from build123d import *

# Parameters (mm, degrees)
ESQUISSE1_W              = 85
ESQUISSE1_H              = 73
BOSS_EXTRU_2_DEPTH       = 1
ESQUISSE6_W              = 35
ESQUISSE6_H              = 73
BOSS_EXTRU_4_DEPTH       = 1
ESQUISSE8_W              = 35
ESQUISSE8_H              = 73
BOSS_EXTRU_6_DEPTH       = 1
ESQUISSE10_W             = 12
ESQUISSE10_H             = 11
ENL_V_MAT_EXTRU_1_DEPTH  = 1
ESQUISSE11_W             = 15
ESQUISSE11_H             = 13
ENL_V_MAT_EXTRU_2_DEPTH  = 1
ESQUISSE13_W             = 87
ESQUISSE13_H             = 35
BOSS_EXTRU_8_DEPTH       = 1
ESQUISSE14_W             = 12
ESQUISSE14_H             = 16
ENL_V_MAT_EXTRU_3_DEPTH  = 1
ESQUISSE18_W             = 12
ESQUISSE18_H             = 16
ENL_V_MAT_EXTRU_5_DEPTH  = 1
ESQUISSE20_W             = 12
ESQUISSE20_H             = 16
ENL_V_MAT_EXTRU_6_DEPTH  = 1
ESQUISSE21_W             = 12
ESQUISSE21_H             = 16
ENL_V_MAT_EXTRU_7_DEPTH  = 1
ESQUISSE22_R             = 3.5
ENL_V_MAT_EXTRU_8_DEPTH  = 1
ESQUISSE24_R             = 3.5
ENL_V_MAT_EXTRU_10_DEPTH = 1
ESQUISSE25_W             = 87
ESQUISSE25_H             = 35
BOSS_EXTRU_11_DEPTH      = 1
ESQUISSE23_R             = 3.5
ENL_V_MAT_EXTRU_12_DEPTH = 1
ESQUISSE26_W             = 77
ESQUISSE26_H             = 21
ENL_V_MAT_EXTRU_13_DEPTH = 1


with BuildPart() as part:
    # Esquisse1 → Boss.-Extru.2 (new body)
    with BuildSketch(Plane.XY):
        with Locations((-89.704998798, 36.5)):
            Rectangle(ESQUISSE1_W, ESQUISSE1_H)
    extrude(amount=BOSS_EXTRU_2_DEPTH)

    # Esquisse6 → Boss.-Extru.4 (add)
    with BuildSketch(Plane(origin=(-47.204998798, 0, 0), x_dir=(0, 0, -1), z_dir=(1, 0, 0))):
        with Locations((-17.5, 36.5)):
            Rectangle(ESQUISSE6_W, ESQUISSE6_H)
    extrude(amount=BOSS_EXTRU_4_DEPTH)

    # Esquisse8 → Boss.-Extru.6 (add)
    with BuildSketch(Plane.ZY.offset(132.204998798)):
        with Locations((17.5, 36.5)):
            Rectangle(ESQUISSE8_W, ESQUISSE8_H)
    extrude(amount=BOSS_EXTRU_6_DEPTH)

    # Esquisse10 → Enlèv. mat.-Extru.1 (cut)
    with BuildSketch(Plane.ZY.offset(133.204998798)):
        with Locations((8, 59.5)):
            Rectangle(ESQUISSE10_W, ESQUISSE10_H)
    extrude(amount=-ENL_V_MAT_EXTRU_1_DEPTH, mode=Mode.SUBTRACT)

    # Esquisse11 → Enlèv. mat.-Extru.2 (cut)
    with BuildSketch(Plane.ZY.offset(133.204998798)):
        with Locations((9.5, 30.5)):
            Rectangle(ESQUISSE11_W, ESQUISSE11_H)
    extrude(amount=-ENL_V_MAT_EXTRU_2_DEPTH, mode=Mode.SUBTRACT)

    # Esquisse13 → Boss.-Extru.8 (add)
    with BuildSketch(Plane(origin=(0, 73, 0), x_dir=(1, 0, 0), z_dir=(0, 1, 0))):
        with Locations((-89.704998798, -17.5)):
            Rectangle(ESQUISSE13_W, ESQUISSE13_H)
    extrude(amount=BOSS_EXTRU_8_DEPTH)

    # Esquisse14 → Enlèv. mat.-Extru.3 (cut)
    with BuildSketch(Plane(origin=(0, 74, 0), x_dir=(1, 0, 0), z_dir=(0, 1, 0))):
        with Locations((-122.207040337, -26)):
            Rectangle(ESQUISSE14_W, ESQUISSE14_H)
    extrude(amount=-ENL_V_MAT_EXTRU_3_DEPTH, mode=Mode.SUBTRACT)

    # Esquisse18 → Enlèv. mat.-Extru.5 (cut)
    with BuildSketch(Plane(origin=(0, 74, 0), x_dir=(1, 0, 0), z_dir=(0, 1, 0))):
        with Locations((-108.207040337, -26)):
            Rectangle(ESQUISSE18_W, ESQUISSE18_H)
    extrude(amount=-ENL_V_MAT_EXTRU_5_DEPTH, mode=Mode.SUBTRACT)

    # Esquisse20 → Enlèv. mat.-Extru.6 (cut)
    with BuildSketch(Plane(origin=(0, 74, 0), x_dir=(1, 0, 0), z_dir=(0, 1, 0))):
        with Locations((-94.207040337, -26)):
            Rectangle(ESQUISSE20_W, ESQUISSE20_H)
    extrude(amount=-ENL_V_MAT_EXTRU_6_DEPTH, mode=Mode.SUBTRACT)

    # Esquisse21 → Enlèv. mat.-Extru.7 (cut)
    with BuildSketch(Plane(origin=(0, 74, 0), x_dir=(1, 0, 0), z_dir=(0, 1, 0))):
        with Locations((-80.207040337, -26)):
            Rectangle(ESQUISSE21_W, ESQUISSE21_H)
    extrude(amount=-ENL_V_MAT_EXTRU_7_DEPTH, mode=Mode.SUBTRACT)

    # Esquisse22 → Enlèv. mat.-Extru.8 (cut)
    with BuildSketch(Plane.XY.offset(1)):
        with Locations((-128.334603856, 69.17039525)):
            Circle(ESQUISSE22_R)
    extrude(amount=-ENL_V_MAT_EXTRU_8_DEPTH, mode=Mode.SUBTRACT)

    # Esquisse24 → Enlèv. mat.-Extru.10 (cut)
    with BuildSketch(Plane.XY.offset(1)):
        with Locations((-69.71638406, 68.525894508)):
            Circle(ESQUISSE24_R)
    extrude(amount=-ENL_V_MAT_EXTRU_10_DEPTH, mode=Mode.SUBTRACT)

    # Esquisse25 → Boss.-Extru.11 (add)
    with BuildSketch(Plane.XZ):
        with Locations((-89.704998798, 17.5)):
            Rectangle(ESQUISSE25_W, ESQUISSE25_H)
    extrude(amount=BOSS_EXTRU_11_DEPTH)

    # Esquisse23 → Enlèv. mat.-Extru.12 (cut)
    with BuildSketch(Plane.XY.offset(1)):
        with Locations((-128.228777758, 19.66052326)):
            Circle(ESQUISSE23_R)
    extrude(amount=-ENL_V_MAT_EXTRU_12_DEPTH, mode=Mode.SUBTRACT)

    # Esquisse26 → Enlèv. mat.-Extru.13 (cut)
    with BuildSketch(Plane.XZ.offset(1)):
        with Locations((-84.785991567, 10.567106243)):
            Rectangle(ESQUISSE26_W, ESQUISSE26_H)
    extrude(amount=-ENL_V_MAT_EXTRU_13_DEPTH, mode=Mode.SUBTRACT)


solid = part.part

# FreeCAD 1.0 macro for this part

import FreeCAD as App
import Part
import Sketcher
from FreeCAD import Vector

doc = App.newDocument("Part")
body = doc.addObject("PartDesign::Body", "Body")

# Sketch on XY plane
sketch1 = body.newObject("Sketcher::SketchObject", "Sketch")
sketch1.AttachmentSupport = (doc.getObject("XY_Plane"), [""])
sketch1.MapMode = "FlatFace"
sketch1.addGeometry(Part.LineSegment(Vector(-132, 73, 0), Vector(-132, 0, 0)), False)
sketch1.addGeometry(Part.LineSegment(Vector(-132, 0, 0), Vector(-47, 0, 0)), False)
sketch1.addGeometry(Part.LineSegment(Vector(-47, 0, 0), Vector(-47, 73, 0)), False)
sketch1.addGeometry(Part.LineSegment(Vector(-47, 73, 0), Vector(-132, 73, 0)), False)
sketch1.addConstraint(Sketcher.Constraint("Coincident", 0, 2, 1, 1))
sketch1.addConstraint(Sketcher.Constraint("Coincident", 1, 2, 2, 1))
sketch1.addConstraint(Sketcher.Constraint("Coincident", 2, 2, 3, 1))
sketch1.addConstraint(Sketcher.Constraint("Coincident", 3, 2, 0, 1))
sketch1.addConstraint(Sketcher.Constraint("Vertical", 0))
sketch1.addConstraint(Sketcher.Constraint("Horizontal", 1))
sketch1.addConstraint(Sketcher.Constraint("Vertical", 2))
sketch1.addConstraint(Sketcher.Constraint("Horizontal", 3))
sketch1.addConstraint(Sketcher.Constraint("PointOnObject", 0, 2, -1))
sketch1.addConstraint(Sketcher.Constraint("DistanceX", 1, 1, 1, 2, 85.0))
sketch1.addConstraint(Sketcher.Constraint("DistanceY", 0, 2, 0, 1, 73.0))
sketch1.addConstraint(Sketcher.Constraint("DistanceX", 0, 2, -1, 1, 132.204999))
pad1 = body.newObject("PartDesign::Pad", "Pad")
pad1.Profile = sketch1
pad1.Length = 1

# Sketch on YZ plane
sketch2 = body.newObject("Sketcher::SketchObject", "Sketch001")
sketch2.AttachmentSupport = (doc.getObject("YZ_Plane"), [""])
sketch2.MapMode = "FlatFace"
sketch2.AttachmentOffset = App.Placement(Vector(0, 0, -47.204999), App.Rotation())
sketch2.addGeometry(Part.LineSegment(Vector(73, 35, 0), Vector(0, 35, 0)), False)
sketch2.addGeometry(Part.LineSegment(Vector(0, 35, 0), Vector(0, 0, 0)), False)
sketch2.addGeometry(Part.LineSegment(Vector(0, 0, 0), Vector(73, 0, 0)), False)
sketch2.addGeometry(Part.LineSegment(Vector(73, 0, 0), Vector(73, 35, 0)), False)
sketch2.addConstraint(Sketcher.Constraint("Coincident", 0, 2, 1, 1))
sketch2.addConstraint(Sketcher.Constraint("Coincident", 1, 2, 2, 1))
sketch2.addConstraint(Sketcher.Constraint("Coincident", 2, 2, 3, 1))
sketch2.addConstraint(Sketcher.Constraint("Coincident", 3, 2, 0, 1))
sketch2.addConstraint(Sketcher.Constraint("Horizontal", 0))
sketch2.addConstraint(Sketcher.Constraint("Vertical", 1))
sketch2.addConstraint(Sketcher.Constraint("Horizontal", 2))
sketch2.addConstraint(Sketcher.Constraint("Vertical", 3))
sketch2.addConstraint(Sketcher.Constraint("Coincident", 1, 2, -1, 1))
sketch2.addConstraint(Sketcher.Constraint("DistanceX", 0, 2, 0, 1, 73.0))
sketch2.addConstraint(Sketcher.Constraint("DistanceY", 1, 2, 1, 1, 35.0))
pad2 = body.newObject("PartDesign::Pad", "Pad001")
pad2.Profile = sketch2
pad2.Length = 1

# Sketch on YZ plane
sketch3 = body.newObject("Sketcher::SketchObject", "Sketch002")
sketch3.AttachmentSupport = (doc.getObject("YZ_Plane"), [""])
sketch3.MapMode = "FlatFace"
sketch3.AttachmentOffset = App.Placement(Vector(0, 0, -132.204999), App.Rotation())
sketch3.addGeometry(Part.LineSegment(Vector(73, 0, 0), Vector(0, 0, 0)), False)
sketch3.addGeometry(Part.LineSegment(Vector(0, 0, 0), Vector(0, 35, 0)), False)
sketch3.addGeometry(Part.LineSegment(Vector(0, 35, 0), Vector(73, 35, 0)), False)
sketch3.addGeometry(Part.LineSegment(Vector(73, 35, 0), Vector(73, 0, 0)), False)
sketch3.addConstraint(Sketcher.Constraint("Coincident", 0, 2, 1, 1))
sketch3.addConstraint(Sketcher.Constraint("Coincident", 1, 2, 2, 1))
sketch3.addConstraint(Sketcher.Constraint("Coincident", 2, 2, 3, 1))
sketch3.addConstraint(Sketcher.Constraint("Coincident", 3, 2, 0, 1))
sketch3.addConstraint(Sketcher.Constraint("Horizontal", 0))
sketch3.addConstraint(Sketcher.Constraint("Vertical", 1))
sketch3.addConstraint(Sketcher.Constraint("Horizontal", 2))
sketch3.addConstraint(Sketcher.Constraint("Vertical", 3))
sketch3.addConstraint(Sketcher.Constraint("Coincident", 0, 2, -1, 1))
sketch3.addConstraint(Sketcher.Constraint("DistanceX", 0, 2, 0, 1, 73.0))
sketch3.addConstraint(Sketcher.Constraint("DistanceY", 1, 1, 1, 2, 35.0))
pad3 = body.newObject("PartDesign::Pad", "Pad002")
pad3.Profile = sketch3
pad3.Length = 1
pad3.Reversed = True

# Sketch on YZ plane
sketch4 = body.newObject("Sketcher::SketchObject", "Sketch003")
sketch4.AttachmentSupport = (doc.getObject("YZ_Plane"), [""])
sketch4.MapMode = "FlatFace"
sketch4.AttachmentOffset = App.Placement(Vector(0, 0, -133.204999), App.Rotation())
sketch4.addGeometry(Part.LineSegment(Vector(65, 2, 0), Vector(54, 2, 0)), False)
sketch4.addGeometry(Part.LineSegment(Vector(54, 2, 0), Vector(54, 14, 0)), False)
sketch4.addGeometry(Part.LineSegment(Vector(54, 14, 0), Vector(65, 14, 0)), False)
sketch4.addGeometry(Part.LineSegment(Vector(65, 14, 0), Vector(65, 2, 0)), False)
sketch4.addConstraint(Sketcher.Constraint("Coincident", 0, 2, 1, 1))
sketch4.addConstraint(Sketcher.Constraint("Coincident", 1, 2, 2, 1))
sketch4.addConstraint(Sketcher.Constraint("Coincident", 2, 2, 3, 1))
sketch4.addConstraint(Sketcher.Constraint("Coincident", 3, 2, 0, 1))
sketch4.addConstraint(Sketcher.Constraint("Horizontal", 0))
sketch4.addConstraint(Sketcher.Constraint("Vertical", 1))
sketch4.addConstraint(Sketcher.Constraint("Horizontal", 2))
sketch4.addConstraint(Sketcher.Constraint("Vertical", 3))
sketch4.addConstraint(Sketcher.Constraint("DistanceX", 0, 2, 0, 1, 11.0))
sketch4.addConstraint(Sketcher.Constraint("DistanceY", 1, 1, 1, 2, 12.0))
sketch4.addConstraint(Sketcher.Constraint("DistanceX", -1, 1, 0, 2, 54.0))
sketch4.addConstraint(Sketcher.Constraint("DistanceY", -1, 1, 0, 2, 2.0))
pocket1 = body.newObject("PartDesign::Pocket", "Pocket")
pocket1.Profile = sketch4
pocket1.Length = 1
pocket1.Reversed = True

# Sketch on YZ plane
sketch5 = body.newObject("Sketcher::SketchObject", "Sketch004")
sketch5.AttachmentSupport = (doc.getObject("YZ_Plane"), [""])
sketch5.MapMode = "FlatFace"
sketch5.AttachmentOffset = App.Placement(Vector(0, 0, -133.204999), App.Rotation())
sketch5.addGeometry(Part.LineSegment(Vector(37, 2, 0), Vector(24, 2, 0)), False)
sketch5.addGeometry(Part.LineSegment(Vector(24, 2, 0), Vector(24, 17, 0)), False)
sketch5.addGeometry(Part.LineSegment(Vector(24, 17, 0), Vector(37, 17, 0)), False)
sketch5.addGeometry(Part.LineSegment(Vector(37, 17, 0), Vector(37, 2, 0)), False)
sketch5.addConstraint(Sketcher.Constraint("Coincident", 0, 2, 1, 1))
sketch5.addConstraint(Sketcher.Constraint("Coincident", 1, 2, 2, 1))
sketch5.addConstraint(Sketcher.Constraint("Coincident", 2, 2, 3, 1))
sketch5.addConstraint(Sketcher.Constraint("Coincident", 3, 2, 0, 1))
sketch5.addConstraint(Sketcher.Constraint("Horizontal", 0))
sketch5.addConstraint(Sketcher.Constraint("Vertical", 1))
sketch5.addConstraint(Sketcher.Constraint("Horizontal", 2))
sketch5.addConstraint(Sketcher.Constraint("Vertical", 3))
sketch5.addConstraint(Sketcher.Constraint("DistanceX", 0, 2, 0, 1, 13.0))
sketch5.addConstraint(Sketcher.Constraint("DistanceY", 1, 1, 1, 2, 15.0))
sketch5.addConstraint(Sketcher.Constraint("DistanceX", -1, 1, 0, 2, 24.0))
sketch5.addConstraint(Sketcher.Constraint("DistanceY", -1, 1, 0, 2, 2.0))
pocket2 = body.newObject("PartDesign::Pocket", "Pocket001")
pocket2.Profile = sketch5
pocket2.Length = 1
pocket2.Reversed = True

# Sketch on XZ plane
sketch6 = body.newObject("Sketcher::SketchObject", "Sketch005")
sketch6.AttachmentSupport = (doc.getObject("XZ_Plane"), [""])
sketch6.MapMode = "FlatFace"
sketch6.AttachmentOffset = App.Placement(Vector(0, 0, -73), App.Rotation())
sketch6.addGeometry(Part.LineSegment(Vector(-133, 0, 0), Vector(-133, 35, 0)), False)
sketch6.addGeometry(Part.LineSegment(Vector(-133, 35, 0), Vector(-46, 35, 0)), False)
sketch6.addGeometry(Part.LineSegment(Vector(-46, 35, 0), Vector(-46, 0, 0)), False)
sketch6.addGeometry(Part.LineSegment(Vector(-46, 0, 0), Vector(-133, 0, 0)), False)
sketch6.addConstraint(Sketcher.Constraint("Coincident", 0, 2, 1, 1))
sketch6.addConstraint(Sketcher.Constraint("Coincident", 1, 2, 2, 1))
sketch6.addConstraint(Sketcher.Constraint("Coincident", 2, 2, 3, 1))
sketch6.addConstraint(Sketcher.Constraint("Coincident", 3, 2, 0, 1))
sketch6.addConstraint(Sketcher.Constraint("Vertical", 0))
sketch6.addConstraint(Sketcher.Constraint("Horizontal", 1))
sketch6.addConstraint(Sketcher.Constraint("Vertical", 2))
sketch6.addConstraint(Sketcher.Constraint("Horizontal", 3))
sketch6.addConstraint(Sketcher.Constraint("PointOnObject", 2, 2, -1))
sketch6.addConstraint(Sketcher.Constraint("DistanceX", 1, 1, 1, 2, 87.0))
sketch6.addConstraint(Sketcher.Constraint("DistanceY", 0, 1, 0, 2, 35.0))
sketch6.addConstraint(Sketcher.Constraint("DistanceX", 0, 2, -1, 1, 133.204999))
pad4 = body.newObject("PartDesign::Pad", "Pad003")
pad4.Profile = sketch6
pad4.Length = 1
pad4.Reversed = True

# Sketch on XZ plane
sketch7 = body.newObject("Sketcher::SketchObject", "Sketch006")
sketch7.AttachmentSupport = (doc.getObject("XZ_Plane"), [""])
sketch7.MapMode = "FlatFace"
sketch7.AttachmentOffset = App.Placement(Vector(0, 0, -74), App.Rotation())
sketch7.addGeometry(Part.LineSegment(Vector(-128, 18, 0), Vector(-128, 34, 0)), False)
sketch7.addGeometry(Part.LineSegment(Vector(-128, 34, 0), Vector(-116, 34, 0)), False)
sketch7.addGeometry(Part.LineSegment(Vector(-116, 34, 0), Vector(-116, 18, 0)), False)
sketch7.addGeometry(Part.LineSegment(Vector(-116, 18, 0), Vector(-128, 18, 0)), False)
sketch7.addConstraint(Sketcher.Constraint("Coincident", 0, 2, 1, 1))
sketch7.addConstraint(Sketcher.Constraint("Coincident", 1, 2, 2, 1))
sketch7.addConstraint(Sketcher.Constraint("Coincident", 2, 2, 3, 1))
sketch7.addConstraint(Sketcher.Constraint("Coincident", 3, 2, 0, 1))
sketch7.addConstraint(Sketcher.Constraint("Vertical", 0))
sketch7.addConstraint(Sketcher.Constraint("Horizontal", 1))
sketch7.addConstraint(Sketcher.Constraint("Vertical", 2))
sketch7.addConstraint(Sketcher.Constraint("Horizontal", 3))
sketch7.addConstraint(Sketcher.Constraint("DistanceX", 1, 1, 1, 2, 12.0))
sketch7.addConstraint(Sketcher.Constraint("DistanceY", 0, 1, 0, 2, 16.0))
sketch7.addConstraint(Sketcher.Constraint("DistanceY", -1, 1, 0, 2, 34.0))
sketch7.addConstraint(Sketcher.Constraint("DistanceX", 0, 2, -1, 1, 128.20704))
pocket3 = body.newObject("PartDesign::Pocket", "Pocket002")
pocket3.Profile = sketch7
pocket3.Length = 1
pocket3.Reversed = True

# Sketch on XZ plane
sketch8 = body.newObject("Sketcher::SketchObject", "Sketch007")
sketch8.AttachmentSupport = (doc.getObject("XZ_Plane"), [""])
sketch8.MapMode = "FlatFace"
sketch8.AttachmentOffset = App.Placement(Vector(0, 0, -74), App.Rotation())
sketch8.addGeometry(Part.LineSegment(Vector(-114, 18, 0), Vector(-114, 34, 0)), False)
sketch8.addGeometry(Part.LineSegment(Vector(-114, 34, 0), Vector(-102, 34, 0)), False)
sketch8.addGeometry(Part.LineSegment(Vector(-102, 34, 0), Vector(-102, 18, 0)), False)
sketch8.addGeometry(Part.LineSegment(Vector(-102, 18, 0), Vector(-114, 18, 0)), False)
sketch8.addConstraint(Sketcher.Constraint("Coincident", 0, 2, 1, 1))
sketch8.addConstraint(Sketcher.Constraint("Coincident", 1, 2, 2, 1))
sketch8.addConstraint(Sketcher.Constraint("Coincident", 2, 2, 3, 1))
sketch8.addConstraint(Sketcher.Constraint("Coincident", 3, 2, 0, 1))
sketch8.addConstraint(Sketcher.Constraint("Vertical", 0))
sketch8.addConstraint(Sketcher.Constraint("Horizontal", 1))
sketch8.addConstraint(Sketcher.Constraint("Vertical", 2))
sketch8.addConstraint(Sketcher.Constraint("Horizontal", 3))
sketch8.addConstraint(Sketcher.Constraint("DistanceX", 1, 1, 1, 2, 12.0))
sketch8.addConstraint(Sketcher.Constraint("DistanceY", 0, 1, 0, 2, 16.0))
sketch8.addConstraint(Sketcher.Constraint("DistanceY", -1, 1, 0, 2, 34.0))
sketch8.addConstraint(Sketcher.Constraint("DistanceX", 0, 2, -1, 1, 114.20704))
pocket4 = body.newObject("PartDesign::Pocket", "Pocket003")
pocket4.Profile = sketch8
pocket4.Length = 1
pocket4.Reversed = True

# Sketch on XZ plane
sketch9 = body.newObject("Sketcher::SketchObject", "Sketch008")
sketch9.AttachmentSupport = (doc.getObject("XZ_Plane"), [""])
sketch9.MapMode = "FlatFace"
sketch9.AttachmentOffset = App.Placement(Vector(0, 0, -74), App.Rotation())
sketch9.addGeometry(Part.LineSegment(Vector(-100, 18, 0), Vector(-100, 34, 0)), False)
sketch9.addGeometry(Part.LineSegment(Vector(-100, 34, 0), Vector(-88, 34, 0)), False)
sketch9.addGeometry(Part.LineSegment(Vector(-88, 34, 0), Vector(-88, 18, 0)), False)
sketch9.addGeometry(Part.LineSegment(Vector(-88, 18, 0), Vector(-100, 18, 0)), False)
sketch9.addConstraint(Sketcher.Constraint("Coincident", 0, 2, 1, 1))
sketch9.addConstraint(Sketcher.Constraint("Coincident", 1, 2, 2, 1))
sketch9.addConstraint(Sketcher.Constraint("Coincident", 2, 2, 3, 1))
sketch9.addConstraint(Sketcher.Constraint("Coincident", 3, 2, 0, 1))
sketch9.addConstraint(Sketcher.Constraint("Vertical", 0))
sketch9.addConstraint(Sketcher.Constraint("Horizontal", 1))
sketch9.addConstraint(Sketcher.Constraint("Vertical", 2))
sketch9.addConstraint(Sketcher.Constraint("Horizontal", 3))
sketch9.addConstraint(Sketcher.Constraint("DistanceX", 1, 1, 1, 2, 12.0))
sketch9.addConstraint(Sketcher.Constraint("DistanceY", 0, 1, 0, 2, 16.0))
sketch9.addConstraint(Sketcher.Constraint("DistanceY", -1, 1, 0, 2, 34.0))
sketch9.addConstraint(Sketcher.Constraint("DistanceX", 0, 2, -1, 1, 100.20704))
pocket5 = body.newObject("PartDesign::Pocket", "Pocket004")
pocket5.Profile = sketch9
pocket5.Length = 1
pocket5.Reversed = True

# Sketch on XZ plane
sketch10 = body.newObject("Sketcher::SketchObject", "Sketch009")
sketch10.AttachmentSupport = (doc.getObject("XZ_Plane"), [""])
sketch10.MapMode = "FlatFace"
sketch10.AttachmentOffset = App.Placement(Vector(0, 0, -74), App.Rotation())
sketch10.addGeometry(Part.LineSegment(Vector(-86, 18, 0), Vector(-86, 34, 0)), False)
sketch10.addGeometry(Part.LineSegment(Vector(-86, 34, 0), Vector(-74, 34, 0)), False)
sketch10.addGeometry(Part.LineSegment(Vector(-74, 34, 0), Vector(-74, 18, 0)), False)
sketch10.addGeometry(Part.LineSegment(Vector(-74, 18, 0), Vector(-86, 18, 0)), False)
sketch10.addConstraint(Sketcher.Constraint("Coincident", 0, 2, 1, 1))
sketch10.addConstraint(Sketcher.Constraint("Coincident", 1, 2, 2, 1))
sketch10.addConstraint(Sketcher.Constraint("Coincident", 2, 2, 3, 1))
sketch10.addConstraint(Sketcher.Constraint("Coincident", 3, 2, 0, 1))
sketch10.addConstraint(Sketcher.Constraint("Vertical", 0))
sketch10.addConstraint(Sketcher.Constraint("Horizontal", 1))
sketch10.addConstraint(Sketcher.Constraint("Vertical", 2))
sketch10.addConstraint(Sketcher.Constraint("Horizontal", 3))
sketch10.addConstraint(Sketcher.Constraint("DistanceX", 1, 1, 1, 2, 12.0))
sketch10.addConstraint(Sketcher.Constraint("DistanceY", 0, 1, 0, 2, 16.0))
sketch10.addConstraint(Sketcher.Constraint("DistanceY", -1, 1, 0, 2, 34.0))
sketch10.addConstraint(Sketcher.Constraint("DistanceX", 0, 2, -1, 1, 86.20704))
pocket6 = body.newObject("PartDesign::Pocket", "Pocket005")
pocket6.Profile = sketch10
pocket6.Length = 1
pocket6.Reversed = True

# Sketch on XY plane
sketch11 = body.newObject("Sketcher::SketchObject", "Sketch010")
sketch11.AttachmentSupport = (doc.getObject("XY_Plane"), [""])
sketch11.MapMode = "FlatFace"
sketch11.AttachmentOffset = App.Placement(Vector(0, 0, 1), App.Rotation())
sketch11.addGeometry(Part.Circle(Vector(-128.3, 69.2, 0), Vector(0, 0, 1), 3.5), False)
sketch11.addConstraint(Sketcher.Constraint("Diameter", 0, 7.0))
sketch11.addConstraint(Sketcher.Constraint("DistanceX", 0, 3, -1, 1, 128.334604))
sketch11.addConstraint(Sketcher.Constraint("DistanceY", -1, 1, 0, 3, 69.170395))
pocket7 = body.newObject("PartDesign::Pocket", "Pocket006")
pocket7.Profile = sketch11
pocket7.Length = 1

# Sketch on XY plane
sketch12 = body.newObject("Sketcher::SketchObject", "Sketch011")
sketch12.AttachmentSupport = (doc.getObject("XY_Plane"), [""])
sketch12.MapMode = "FlatFace"
sketch12.AttachmentOffset = App.Placement(Vector(0, 0, 1), App.Rotation())
sketch12.addGeometry(Part.Circle(Vector(-69.7, 68.5, 0), Vector(0, 0, 1), 3.5), False)
sketch12.addConstraint(Sketcher.Constraint("Diameter", 0, 7.0))
sketch12.addConstraint(Sketcher.Constraint("DistanceX", 0, 3, -1, 1, 69.716384))
sketch12.addConstraint(Sketcher.Constraint("DistanceY", -1, 1, 0, 3, 68.525895))
pocket8 = body.newObject("PartDesign::Pocket", "Pocket007")
pocket8.Profile = sketch12
pocket8.Length = 1

# Sketch on XZ plane
sketch13 = body.newObject("Sketcher::SketchObject", "Sketch012")
sketch13.AttachmentSupport = (doc.getObject("XZ_Plane"), [""])
sketch13.MapMode = "FlatFace"
sketch13.addGeometry(Part.LineSegment(Vector(-133, 35, 0), Vector(-133, 0, 0)), False)
sketch13.addGeometry(Part.LineSegment(Vector(-133, 0, 0), Vector(-46, 0, 0)), False)
sketch13.addGeometry(Part.LineSegment(Vector(-46, 0, 0), Vector(-46, 35, 0)), False)
sketch13.addGeometry(Part.LineSegment(Vector(-46, 35, 0), Vector(-133, 35, 0)), False)
sketch13.addConstraint(Sketcher.Constraint("Coincident", 0, 2, 1, 1))
sketch13.addConstraint(Sketcher.Constraint("Coincident", 1, 2, 2, 1))
sketch13.addConstraint(Sketcher.Constraint("Coincident", 2, 2, 3, 1))
sketch13.addConstraint(Sketcher.Constraint("Coincident", 3, 2, 0, 1))
sketch13.addConstraint(Sketcher.Constraint("Vertical", 0))
sketch13.addConstraint(Sketcher.Constraint("Horizontal", 1))
sketch13.addConstraint(Sketcher.Constraint("Vertical", 2))
sketch13.addConstraint(Sketcher.Constraint("Horizontal", 3))
sketch13.addConstraint(Sketcher.Constraint("PointOnObject", 0, 2, -1))
sketch13.addConstraint(Sketcher.Constraint("DistanceX", 1, 1, 1, 2, 87.0))
sketch13.addConstraint(Sketcher.Constraint("DistanceY", 0, 2, 0, 1, 35.0))
sketch13.addConstraint(Sketcher.Constraint("DistanceX", 0, 2, -1, 1, 133.204999))
pad5 = body.newObject("PartDesign::Pad", "Pad004")
pad5.Profile = sketch13
pad5.Length = 1

# Sketch on XY plane
sketch14 = body.newObject("Sketcher::SketchObject", "Sketch013")
sketch14.AttachmentSupport = (doc.getObject("XY_Plane"), [""])
sketch14.MapMode = "FlatFace"
sketch14.AttachmentOffset = App.Placement(Vector(0, 0, 1), App.Rotation())
sketch14.addGeometry(Part.Circle(Vector(-128.2, 19.7, 0), Vector(0, 0, 1), 3.5), False)
sketch14.addConstraint(Sketcher.Constraint("Diameter", 0, 7.0))
sketch14.addConstraint(Sketcher.Constraint("DistanceX", 0, 3, -1, 1, 128.228778))
sketch14.addConstraint(Sketcher.Constraint("DistanceY", -1, 1, 0, 3, 19.660523))
pocket9 = body.newObject("PartDesign::Pocket", "Pocket008")
pocket9.Profile = sketch14
pocket9.Length = 1

# Sketch on XZ plane
sketch15 = body.newObject("Sketcher::SketchObject", "Sketch014")
sketch15.AttachmentSupport = (doc.getObject("XZ_Plane"), [""])
sketch15.MapMode = "FlatFace"
sketch15.AttachmentOffset = App.Placement(Vector(0, 0, 1), App.Rotation())
sketch15.addGeometry(Part.LineSegment(Vector(-123, 21, 0), Vector(-123, 0, 0)), False)
sketch15.addGeometry(Part.LineSegment(Vector(-123, 0, 0), Vector(-46, 0, 0)), False)
sketch15.addGeometry(Part.LineSegment(Vector(-46, 0, 0), Vector(-46, 21, 0)), False)
sketch15.addGeometry(Part.LineSegment(Vector(-46, 21, 0), Vector(-123, 21, 0)), False)
sketch15.addConstraint(Sketcher.Constraint("Coincident", 0, 2, 1, 1))
sketch15.addConstraint(Sketcher.Constraint("Coincident", 1, 2, 2, 1))
sketch15.addConstraint(Sketcher.Constraint("Coincident", 2, 2, 3, 1))
sketch15.addConstraint(Sketcher.Constraint("Coincident", 3, 2, 0, 1))
sketch15.addConstraint(Sketcher.Constraint("Vertical", 0))
sketch15.addConstraint(Sketcher.Constraint("Horizontal", 1))
sketch15.addConstraint(Sketcher.Constraint("Vertical", 2))
sketch15.addConstraint(Sketcher.Constraint("Horizontal", 3))
sketch15.addConstraint(Sketcher.Constraint("DistanceX", 1, 1, 1, 2, 77.0))
sketch15.addConstraint(Sketcher.Constraint("DistanceY", 0, 2, 0, 1, 21.0))
sketch15.addConstraint(Sketcher.Constraint("DistanceX", 0, 2, -1, 1, 123.285992))
sketch15.addConstraint(Sketcher.Constraint("DistanceY", -1, 1, 0, 2, 0.067106))
pocket10 = body.newObject("PartDesign::Pocket", "Pocket009")
pocket10.Profile = sketch15
pocket10.Length = 1

doc.recompute()
